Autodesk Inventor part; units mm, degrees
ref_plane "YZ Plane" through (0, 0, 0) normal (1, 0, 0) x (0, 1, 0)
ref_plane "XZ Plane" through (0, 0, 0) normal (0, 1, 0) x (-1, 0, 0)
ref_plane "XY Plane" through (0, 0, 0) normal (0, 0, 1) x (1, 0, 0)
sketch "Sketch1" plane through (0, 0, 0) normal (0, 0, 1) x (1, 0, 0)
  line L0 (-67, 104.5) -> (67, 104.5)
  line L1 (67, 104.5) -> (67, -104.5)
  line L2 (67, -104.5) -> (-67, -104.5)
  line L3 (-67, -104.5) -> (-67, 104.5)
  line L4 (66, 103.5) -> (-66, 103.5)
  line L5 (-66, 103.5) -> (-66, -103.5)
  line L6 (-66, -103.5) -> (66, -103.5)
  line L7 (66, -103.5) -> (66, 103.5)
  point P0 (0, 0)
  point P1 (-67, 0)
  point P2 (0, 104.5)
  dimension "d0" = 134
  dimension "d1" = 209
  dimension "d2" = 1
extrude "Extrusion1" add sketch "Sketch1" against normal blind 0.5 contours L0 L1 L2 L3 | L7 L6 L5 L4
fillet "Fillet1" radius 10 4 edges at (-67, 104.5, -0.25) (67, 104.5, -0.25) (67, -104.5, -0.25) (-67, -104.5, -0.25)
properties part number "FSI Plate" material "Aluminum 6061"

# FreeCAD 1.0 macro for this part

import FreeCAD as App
import Part
import Sketcher


def edges_at(feature, points):
    """Names of the edges that pass closest to the given points."""
    edges = feature.Shape.Edges
    near = lambda p: min(range(len(edges)), key=lambda i: edges[i].distToShape(Part.Vertex(*p))[0])
    return sorted({f"Edge{near(p) + 1}" for p in points})


def add_polygon(sketch, points):
    """Adds a closed chain of lines whose ends are joined by coincident constraints."""
    first, n = sketch.GeometryCount, len(points)
    for a, b in zip(points, points[1:] + points[:1]):
        sketch.addGeometry(Part.LineSegment(App.Vector(*a, 0), App.Vector(*b, 0)), False)
    for i in range(n):
        sketch.addConstraint(Sketcher.Constraint("Coincident", first + i, 2, first + (i + 1) % n, 1))

doc = App.newDocument("Part")
params = doc.addObject("Spreadsheet::Sheet", "Params")
for row, (alias, value) in enumerate([
    ("sketch1_width", "134 mm"),
    ("sketch1_height", "209 mm"),
    ("pad1_length", "0.5 mm"),
    ("fillet_radius", "10 mm"),
], start=1):
    params.set(f"A{row}", alias)
    params.set(f"B{row}", "=" + value)
    params.setAlias(f"B{row}", alias)

body = doc.addObject("PartDesign::Body", "Body")

sketch1 = doc.addObject("Sketcher::SketchObject", "Sketch")
body.addObject(sketch1)
sketch1.AttachmentSupport = (doc.XY_Plane, [""])
sketch1.MapMode = "FlatFace"
add_polygon(sketch1, [(67, 104), (-67, 104), (-67, -104), (67, -104)])
sketch1.addConstraint([
    Sketcher.Constraint("Horizontal", 0),
    Sketcher.Constraint("Vertical", 1),
    Sketcher.Constraint("Horizontal", 2),
    Sketcher.Constraint("Vertical", 3),
    Sketcher.Constraint("Symmetric", 0, 2, 2, 2, -1, 1),
    Sketcher.Constraint("DistanceX", 0, 2, 0, 1, 134.0),
    Sketcher.Constraint("DistanceY", 1, 2, 1, 1, 209.0),
])
sketch1.setExpression("Constraints[9]", "Params.sketch1_width")
sketch1.setExpression("Constraints[10]", "Params.sketch1_height")
pad1 = doc.addObject("PartDesign::Pad", "Pad")
body.addObject(pad1)
pad1.Profile = sketch1
pad1.setExpression("Length", "Params.pad1_length")
pad1.Reversed = True
doc.recompute()

fillet = doc.addObject("PartDesign::Fillet", "Fillet")
body.addObject(fillet)
fillet.Base = (pad1, edges_at(pad1, [
    (-67, 104.5, -0.25),
    (67, 104.5, -0.25),
    (67, -104.5, -0.25),
    (-67, -104.5, -0.25),
]))
fillet.setExpression("Radius", "Params.fillet_radius")

doc.recompute()
